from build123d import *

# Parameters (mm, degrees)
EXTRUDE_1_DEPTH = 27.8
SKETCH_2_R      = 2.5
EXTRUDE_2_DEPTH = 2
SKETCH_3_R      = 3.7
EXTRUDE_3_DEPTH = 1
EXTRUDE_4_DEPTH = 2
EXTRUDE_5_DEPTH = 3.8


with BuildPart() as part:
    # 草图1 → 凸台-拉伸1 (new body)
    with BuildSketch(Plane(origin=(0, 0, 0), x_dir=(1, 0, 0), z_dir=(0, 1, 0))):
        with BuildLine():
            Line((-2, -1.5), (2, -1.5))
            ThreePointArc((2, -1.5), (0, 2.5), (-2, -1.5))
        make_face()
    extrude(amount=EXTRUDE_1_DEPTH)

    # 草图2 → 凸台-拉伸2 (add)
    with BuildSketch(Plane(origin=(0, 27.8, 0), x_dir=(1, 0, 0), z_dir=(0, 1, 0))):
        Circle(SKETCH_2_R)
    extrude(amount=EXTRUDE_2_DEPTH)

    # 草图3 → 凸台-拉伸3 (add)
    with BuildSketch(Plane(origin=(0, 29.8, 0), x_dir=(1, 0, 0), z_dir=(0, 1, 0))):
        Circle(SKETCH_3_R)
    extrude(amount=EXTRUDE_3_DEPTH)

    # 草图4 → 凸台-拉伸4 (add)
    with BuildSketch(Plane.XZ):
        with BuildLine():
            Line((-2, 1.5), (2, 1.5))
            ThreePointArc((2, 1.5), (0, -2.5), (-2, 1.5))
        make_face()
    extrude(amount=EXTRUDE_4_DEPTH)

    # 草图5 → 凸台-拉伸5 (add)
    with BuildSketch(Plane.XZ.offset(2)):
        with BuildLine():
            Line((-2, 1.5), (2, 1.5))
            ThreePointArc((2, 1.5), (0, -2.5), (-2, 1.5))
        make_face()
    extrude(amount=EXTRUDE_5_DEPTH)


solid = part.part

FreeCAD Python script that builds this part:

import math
import FreeCAD as App
import Part
import Sketcher
Q = App.Units.Quantity

doc = App.newDocument("Part")
body = doc.addObject("PartDesign::Body", "Body")

# Sketch on XZ plane
sketch1 = body.newObject("Sketcher::SketchObject", "Sketch")
sketch1.AttachmentSupport = (doc.getObject("XZ_Plane"), [""])
sketch1.MapMode = "FlatFace"
sketch1.addGeometry([
    Part.LineSegment(App.Vector(-2, 1.5, 0), App.Vector(2, 1.5, 0)),
    Part.ArcOfCircle(Part.Circle(App.Vector(0, 0, 0), App.Vector(0, 0, 1), 2.5), math.radians(143), math.radians(397)),
], False)
sketch1.addConstraint([
    Sketcher.Constraint("Coincident", 0, 1, 1, 1),
    Sketcher.Constraint("Coincident", 1, 2, 0, 2),
    Sketcher.Constraint("Horizontal", 0),
    Sketcher.Constraint("Coincident", 1, 3, -1, 1),
    Sketcher.Constraint("Radius", 1, Q("2.5 mm")),
    Sketcher.Constraint("DistanceX", 0, 1, 0, 2, Q("4 mm")),
])
pad1 = body.newObject("PartDesign::Pad", "Pad")
pad1.Profile = sketch1
pad1.Length = 27.8
pad1.Reversed = True

# Sketch on XZ plane
sketch2 = body.newObject("Sketcher::SketchObject", "Sketch001")
sketch2.AttachmentSupport = (doc.getObject("XZ_Plane"), [""])
sketch2.MapMode = "FlatFace"
sketch2.AttachmentOffset = App.Placement(App.Vector(0, 0, -27.8), App.Rotation())
sketch2.addGeometry(Part.Circle(App.Vector(0, 0, 0), App.Vector(0, 0, 1), 2.5), False)
sketch2.addConstraint([
    Sketcher.Constraint("Coincident", 0, 3, -1, 1),
    Sketcher.Constraint("Diameter", 0, Q("5 mm")),
])
pad2 = body.newObject("PartDesign::Pad", "Pad001")
pad2.Profile = sketch2
pad2.Length = 2
pad2.Reversed = True

# Sketch on XZ plane
sketch3 = body.newObject("Sketcher::SketchObject", "Sketch002")
sketch3.AttachmentSupport = (doc.getObject("XZ_Plane"), [""])
sketch3.MapMode = "FlatFace"
sketch3.AttachmentOffset = App.Placement(App.Vector(0, 0, -29.8), App.Rotation())
sketch3.addGeometry(Part.Circle(App.Vector(0, 0, 0), App.Vector(0, 0, 1), 3.7), False)
sketch3.addConstraint([
    Sketcher.Constraint("Coincident", 0, 3, -1, 1),
    Sketcher.Constraint("Diameter", 0, Q("7.4 mm")),
])
pad3 = body.newObject("PartDesign::Pad", "Pad002")
pad3.Profile = sketch3
pad3.Length = 1
pad3.Reversed = True

# Sketch on XZ plane
sketch4 = body.newObject("Sketcher::SketchObject", "Sketch003")
sketch4.AttachmentSupport = (doc.getObject("XZ_Plane"), [""])
sketch4.MapMode = "FlatFace"
sketch4.addGeometry([
    Part.LineSegment(App.Vector(2, 1.5, 0), App.Vector(-2, 1.5, 0)),
    Part.ArcOfCircle(Part.Circle(App.Vector(0, 0, 0), App.Vector(0, 0, 1), 2.5), math.radians(143), math.radians(397)),
], False)
sketch4.addConstraint([
    Sketcher.Constraint("Coincident", 0, 1, 1, 2),
    Sketcher.Constraint("Coincident", 1, 1, 0, 2),
    Sketcher.Constraint("Horizontal", 0),
    Sketcher.Constraint("Coincident", 1, 3, -1, 1),
    Sketcher.Constraint("Radius", 1, Q("2.5 mm")),
    Sketcher.Constraint("DistanceX", 0, 2, 0, 1, Q("4 mm")),
])
pad4 = body.newObject("PartDesign::Pad", "Pad003")
pad4.Profile = sketch4
pad4.Length = 2

# Sketch on XZ plane
sketch5 = body.newObject("Sketcher::SketchObject", "Sketch004")
sketch5.AttachmentSupport = (doc.getObject("XZ_Plane"), [""])
sketch5.MapMode = "FlatFace"
sketch5.AttachmentOffset = App.Placement(App.Vector(0, 0, 2), App.Rotation())
sketch5.addGeometry([
    Part.LineSegment(App.Vector(2, 1.5, 0), App.Vector(-2, 1.5, 0)),
    Part.ArcOfCircle(Part.Circle(App.Vector(0, 0, 0), App.Vector(0, 0, 1), 2.5), math.radians(143), math.radians(397)),
], False)
sketch5.addConstraint([
    Sketcher.Constraint("Coincident", 0, 1, 1, 2),
    Sketcher.Constraint("Coincident", 1, 1, 0, 2),
    Sketcher.Constraint("Horizontal", 0),
    Sketcher.Constraint("Coincident", 1, 3, -1, 1),
    Sketcher.Constraint("Radius", 1, Q("2.5 mm")),
    Sketcher.Constraint("DistanceX", 0, 2, 0, 1, Q("4 mm")),
])
pad5 = body.newObject("PartDesign::Pad", "Pad004")
pad5.Profile = sketch5
pad5.Length = 3.8

doc.recompute()
